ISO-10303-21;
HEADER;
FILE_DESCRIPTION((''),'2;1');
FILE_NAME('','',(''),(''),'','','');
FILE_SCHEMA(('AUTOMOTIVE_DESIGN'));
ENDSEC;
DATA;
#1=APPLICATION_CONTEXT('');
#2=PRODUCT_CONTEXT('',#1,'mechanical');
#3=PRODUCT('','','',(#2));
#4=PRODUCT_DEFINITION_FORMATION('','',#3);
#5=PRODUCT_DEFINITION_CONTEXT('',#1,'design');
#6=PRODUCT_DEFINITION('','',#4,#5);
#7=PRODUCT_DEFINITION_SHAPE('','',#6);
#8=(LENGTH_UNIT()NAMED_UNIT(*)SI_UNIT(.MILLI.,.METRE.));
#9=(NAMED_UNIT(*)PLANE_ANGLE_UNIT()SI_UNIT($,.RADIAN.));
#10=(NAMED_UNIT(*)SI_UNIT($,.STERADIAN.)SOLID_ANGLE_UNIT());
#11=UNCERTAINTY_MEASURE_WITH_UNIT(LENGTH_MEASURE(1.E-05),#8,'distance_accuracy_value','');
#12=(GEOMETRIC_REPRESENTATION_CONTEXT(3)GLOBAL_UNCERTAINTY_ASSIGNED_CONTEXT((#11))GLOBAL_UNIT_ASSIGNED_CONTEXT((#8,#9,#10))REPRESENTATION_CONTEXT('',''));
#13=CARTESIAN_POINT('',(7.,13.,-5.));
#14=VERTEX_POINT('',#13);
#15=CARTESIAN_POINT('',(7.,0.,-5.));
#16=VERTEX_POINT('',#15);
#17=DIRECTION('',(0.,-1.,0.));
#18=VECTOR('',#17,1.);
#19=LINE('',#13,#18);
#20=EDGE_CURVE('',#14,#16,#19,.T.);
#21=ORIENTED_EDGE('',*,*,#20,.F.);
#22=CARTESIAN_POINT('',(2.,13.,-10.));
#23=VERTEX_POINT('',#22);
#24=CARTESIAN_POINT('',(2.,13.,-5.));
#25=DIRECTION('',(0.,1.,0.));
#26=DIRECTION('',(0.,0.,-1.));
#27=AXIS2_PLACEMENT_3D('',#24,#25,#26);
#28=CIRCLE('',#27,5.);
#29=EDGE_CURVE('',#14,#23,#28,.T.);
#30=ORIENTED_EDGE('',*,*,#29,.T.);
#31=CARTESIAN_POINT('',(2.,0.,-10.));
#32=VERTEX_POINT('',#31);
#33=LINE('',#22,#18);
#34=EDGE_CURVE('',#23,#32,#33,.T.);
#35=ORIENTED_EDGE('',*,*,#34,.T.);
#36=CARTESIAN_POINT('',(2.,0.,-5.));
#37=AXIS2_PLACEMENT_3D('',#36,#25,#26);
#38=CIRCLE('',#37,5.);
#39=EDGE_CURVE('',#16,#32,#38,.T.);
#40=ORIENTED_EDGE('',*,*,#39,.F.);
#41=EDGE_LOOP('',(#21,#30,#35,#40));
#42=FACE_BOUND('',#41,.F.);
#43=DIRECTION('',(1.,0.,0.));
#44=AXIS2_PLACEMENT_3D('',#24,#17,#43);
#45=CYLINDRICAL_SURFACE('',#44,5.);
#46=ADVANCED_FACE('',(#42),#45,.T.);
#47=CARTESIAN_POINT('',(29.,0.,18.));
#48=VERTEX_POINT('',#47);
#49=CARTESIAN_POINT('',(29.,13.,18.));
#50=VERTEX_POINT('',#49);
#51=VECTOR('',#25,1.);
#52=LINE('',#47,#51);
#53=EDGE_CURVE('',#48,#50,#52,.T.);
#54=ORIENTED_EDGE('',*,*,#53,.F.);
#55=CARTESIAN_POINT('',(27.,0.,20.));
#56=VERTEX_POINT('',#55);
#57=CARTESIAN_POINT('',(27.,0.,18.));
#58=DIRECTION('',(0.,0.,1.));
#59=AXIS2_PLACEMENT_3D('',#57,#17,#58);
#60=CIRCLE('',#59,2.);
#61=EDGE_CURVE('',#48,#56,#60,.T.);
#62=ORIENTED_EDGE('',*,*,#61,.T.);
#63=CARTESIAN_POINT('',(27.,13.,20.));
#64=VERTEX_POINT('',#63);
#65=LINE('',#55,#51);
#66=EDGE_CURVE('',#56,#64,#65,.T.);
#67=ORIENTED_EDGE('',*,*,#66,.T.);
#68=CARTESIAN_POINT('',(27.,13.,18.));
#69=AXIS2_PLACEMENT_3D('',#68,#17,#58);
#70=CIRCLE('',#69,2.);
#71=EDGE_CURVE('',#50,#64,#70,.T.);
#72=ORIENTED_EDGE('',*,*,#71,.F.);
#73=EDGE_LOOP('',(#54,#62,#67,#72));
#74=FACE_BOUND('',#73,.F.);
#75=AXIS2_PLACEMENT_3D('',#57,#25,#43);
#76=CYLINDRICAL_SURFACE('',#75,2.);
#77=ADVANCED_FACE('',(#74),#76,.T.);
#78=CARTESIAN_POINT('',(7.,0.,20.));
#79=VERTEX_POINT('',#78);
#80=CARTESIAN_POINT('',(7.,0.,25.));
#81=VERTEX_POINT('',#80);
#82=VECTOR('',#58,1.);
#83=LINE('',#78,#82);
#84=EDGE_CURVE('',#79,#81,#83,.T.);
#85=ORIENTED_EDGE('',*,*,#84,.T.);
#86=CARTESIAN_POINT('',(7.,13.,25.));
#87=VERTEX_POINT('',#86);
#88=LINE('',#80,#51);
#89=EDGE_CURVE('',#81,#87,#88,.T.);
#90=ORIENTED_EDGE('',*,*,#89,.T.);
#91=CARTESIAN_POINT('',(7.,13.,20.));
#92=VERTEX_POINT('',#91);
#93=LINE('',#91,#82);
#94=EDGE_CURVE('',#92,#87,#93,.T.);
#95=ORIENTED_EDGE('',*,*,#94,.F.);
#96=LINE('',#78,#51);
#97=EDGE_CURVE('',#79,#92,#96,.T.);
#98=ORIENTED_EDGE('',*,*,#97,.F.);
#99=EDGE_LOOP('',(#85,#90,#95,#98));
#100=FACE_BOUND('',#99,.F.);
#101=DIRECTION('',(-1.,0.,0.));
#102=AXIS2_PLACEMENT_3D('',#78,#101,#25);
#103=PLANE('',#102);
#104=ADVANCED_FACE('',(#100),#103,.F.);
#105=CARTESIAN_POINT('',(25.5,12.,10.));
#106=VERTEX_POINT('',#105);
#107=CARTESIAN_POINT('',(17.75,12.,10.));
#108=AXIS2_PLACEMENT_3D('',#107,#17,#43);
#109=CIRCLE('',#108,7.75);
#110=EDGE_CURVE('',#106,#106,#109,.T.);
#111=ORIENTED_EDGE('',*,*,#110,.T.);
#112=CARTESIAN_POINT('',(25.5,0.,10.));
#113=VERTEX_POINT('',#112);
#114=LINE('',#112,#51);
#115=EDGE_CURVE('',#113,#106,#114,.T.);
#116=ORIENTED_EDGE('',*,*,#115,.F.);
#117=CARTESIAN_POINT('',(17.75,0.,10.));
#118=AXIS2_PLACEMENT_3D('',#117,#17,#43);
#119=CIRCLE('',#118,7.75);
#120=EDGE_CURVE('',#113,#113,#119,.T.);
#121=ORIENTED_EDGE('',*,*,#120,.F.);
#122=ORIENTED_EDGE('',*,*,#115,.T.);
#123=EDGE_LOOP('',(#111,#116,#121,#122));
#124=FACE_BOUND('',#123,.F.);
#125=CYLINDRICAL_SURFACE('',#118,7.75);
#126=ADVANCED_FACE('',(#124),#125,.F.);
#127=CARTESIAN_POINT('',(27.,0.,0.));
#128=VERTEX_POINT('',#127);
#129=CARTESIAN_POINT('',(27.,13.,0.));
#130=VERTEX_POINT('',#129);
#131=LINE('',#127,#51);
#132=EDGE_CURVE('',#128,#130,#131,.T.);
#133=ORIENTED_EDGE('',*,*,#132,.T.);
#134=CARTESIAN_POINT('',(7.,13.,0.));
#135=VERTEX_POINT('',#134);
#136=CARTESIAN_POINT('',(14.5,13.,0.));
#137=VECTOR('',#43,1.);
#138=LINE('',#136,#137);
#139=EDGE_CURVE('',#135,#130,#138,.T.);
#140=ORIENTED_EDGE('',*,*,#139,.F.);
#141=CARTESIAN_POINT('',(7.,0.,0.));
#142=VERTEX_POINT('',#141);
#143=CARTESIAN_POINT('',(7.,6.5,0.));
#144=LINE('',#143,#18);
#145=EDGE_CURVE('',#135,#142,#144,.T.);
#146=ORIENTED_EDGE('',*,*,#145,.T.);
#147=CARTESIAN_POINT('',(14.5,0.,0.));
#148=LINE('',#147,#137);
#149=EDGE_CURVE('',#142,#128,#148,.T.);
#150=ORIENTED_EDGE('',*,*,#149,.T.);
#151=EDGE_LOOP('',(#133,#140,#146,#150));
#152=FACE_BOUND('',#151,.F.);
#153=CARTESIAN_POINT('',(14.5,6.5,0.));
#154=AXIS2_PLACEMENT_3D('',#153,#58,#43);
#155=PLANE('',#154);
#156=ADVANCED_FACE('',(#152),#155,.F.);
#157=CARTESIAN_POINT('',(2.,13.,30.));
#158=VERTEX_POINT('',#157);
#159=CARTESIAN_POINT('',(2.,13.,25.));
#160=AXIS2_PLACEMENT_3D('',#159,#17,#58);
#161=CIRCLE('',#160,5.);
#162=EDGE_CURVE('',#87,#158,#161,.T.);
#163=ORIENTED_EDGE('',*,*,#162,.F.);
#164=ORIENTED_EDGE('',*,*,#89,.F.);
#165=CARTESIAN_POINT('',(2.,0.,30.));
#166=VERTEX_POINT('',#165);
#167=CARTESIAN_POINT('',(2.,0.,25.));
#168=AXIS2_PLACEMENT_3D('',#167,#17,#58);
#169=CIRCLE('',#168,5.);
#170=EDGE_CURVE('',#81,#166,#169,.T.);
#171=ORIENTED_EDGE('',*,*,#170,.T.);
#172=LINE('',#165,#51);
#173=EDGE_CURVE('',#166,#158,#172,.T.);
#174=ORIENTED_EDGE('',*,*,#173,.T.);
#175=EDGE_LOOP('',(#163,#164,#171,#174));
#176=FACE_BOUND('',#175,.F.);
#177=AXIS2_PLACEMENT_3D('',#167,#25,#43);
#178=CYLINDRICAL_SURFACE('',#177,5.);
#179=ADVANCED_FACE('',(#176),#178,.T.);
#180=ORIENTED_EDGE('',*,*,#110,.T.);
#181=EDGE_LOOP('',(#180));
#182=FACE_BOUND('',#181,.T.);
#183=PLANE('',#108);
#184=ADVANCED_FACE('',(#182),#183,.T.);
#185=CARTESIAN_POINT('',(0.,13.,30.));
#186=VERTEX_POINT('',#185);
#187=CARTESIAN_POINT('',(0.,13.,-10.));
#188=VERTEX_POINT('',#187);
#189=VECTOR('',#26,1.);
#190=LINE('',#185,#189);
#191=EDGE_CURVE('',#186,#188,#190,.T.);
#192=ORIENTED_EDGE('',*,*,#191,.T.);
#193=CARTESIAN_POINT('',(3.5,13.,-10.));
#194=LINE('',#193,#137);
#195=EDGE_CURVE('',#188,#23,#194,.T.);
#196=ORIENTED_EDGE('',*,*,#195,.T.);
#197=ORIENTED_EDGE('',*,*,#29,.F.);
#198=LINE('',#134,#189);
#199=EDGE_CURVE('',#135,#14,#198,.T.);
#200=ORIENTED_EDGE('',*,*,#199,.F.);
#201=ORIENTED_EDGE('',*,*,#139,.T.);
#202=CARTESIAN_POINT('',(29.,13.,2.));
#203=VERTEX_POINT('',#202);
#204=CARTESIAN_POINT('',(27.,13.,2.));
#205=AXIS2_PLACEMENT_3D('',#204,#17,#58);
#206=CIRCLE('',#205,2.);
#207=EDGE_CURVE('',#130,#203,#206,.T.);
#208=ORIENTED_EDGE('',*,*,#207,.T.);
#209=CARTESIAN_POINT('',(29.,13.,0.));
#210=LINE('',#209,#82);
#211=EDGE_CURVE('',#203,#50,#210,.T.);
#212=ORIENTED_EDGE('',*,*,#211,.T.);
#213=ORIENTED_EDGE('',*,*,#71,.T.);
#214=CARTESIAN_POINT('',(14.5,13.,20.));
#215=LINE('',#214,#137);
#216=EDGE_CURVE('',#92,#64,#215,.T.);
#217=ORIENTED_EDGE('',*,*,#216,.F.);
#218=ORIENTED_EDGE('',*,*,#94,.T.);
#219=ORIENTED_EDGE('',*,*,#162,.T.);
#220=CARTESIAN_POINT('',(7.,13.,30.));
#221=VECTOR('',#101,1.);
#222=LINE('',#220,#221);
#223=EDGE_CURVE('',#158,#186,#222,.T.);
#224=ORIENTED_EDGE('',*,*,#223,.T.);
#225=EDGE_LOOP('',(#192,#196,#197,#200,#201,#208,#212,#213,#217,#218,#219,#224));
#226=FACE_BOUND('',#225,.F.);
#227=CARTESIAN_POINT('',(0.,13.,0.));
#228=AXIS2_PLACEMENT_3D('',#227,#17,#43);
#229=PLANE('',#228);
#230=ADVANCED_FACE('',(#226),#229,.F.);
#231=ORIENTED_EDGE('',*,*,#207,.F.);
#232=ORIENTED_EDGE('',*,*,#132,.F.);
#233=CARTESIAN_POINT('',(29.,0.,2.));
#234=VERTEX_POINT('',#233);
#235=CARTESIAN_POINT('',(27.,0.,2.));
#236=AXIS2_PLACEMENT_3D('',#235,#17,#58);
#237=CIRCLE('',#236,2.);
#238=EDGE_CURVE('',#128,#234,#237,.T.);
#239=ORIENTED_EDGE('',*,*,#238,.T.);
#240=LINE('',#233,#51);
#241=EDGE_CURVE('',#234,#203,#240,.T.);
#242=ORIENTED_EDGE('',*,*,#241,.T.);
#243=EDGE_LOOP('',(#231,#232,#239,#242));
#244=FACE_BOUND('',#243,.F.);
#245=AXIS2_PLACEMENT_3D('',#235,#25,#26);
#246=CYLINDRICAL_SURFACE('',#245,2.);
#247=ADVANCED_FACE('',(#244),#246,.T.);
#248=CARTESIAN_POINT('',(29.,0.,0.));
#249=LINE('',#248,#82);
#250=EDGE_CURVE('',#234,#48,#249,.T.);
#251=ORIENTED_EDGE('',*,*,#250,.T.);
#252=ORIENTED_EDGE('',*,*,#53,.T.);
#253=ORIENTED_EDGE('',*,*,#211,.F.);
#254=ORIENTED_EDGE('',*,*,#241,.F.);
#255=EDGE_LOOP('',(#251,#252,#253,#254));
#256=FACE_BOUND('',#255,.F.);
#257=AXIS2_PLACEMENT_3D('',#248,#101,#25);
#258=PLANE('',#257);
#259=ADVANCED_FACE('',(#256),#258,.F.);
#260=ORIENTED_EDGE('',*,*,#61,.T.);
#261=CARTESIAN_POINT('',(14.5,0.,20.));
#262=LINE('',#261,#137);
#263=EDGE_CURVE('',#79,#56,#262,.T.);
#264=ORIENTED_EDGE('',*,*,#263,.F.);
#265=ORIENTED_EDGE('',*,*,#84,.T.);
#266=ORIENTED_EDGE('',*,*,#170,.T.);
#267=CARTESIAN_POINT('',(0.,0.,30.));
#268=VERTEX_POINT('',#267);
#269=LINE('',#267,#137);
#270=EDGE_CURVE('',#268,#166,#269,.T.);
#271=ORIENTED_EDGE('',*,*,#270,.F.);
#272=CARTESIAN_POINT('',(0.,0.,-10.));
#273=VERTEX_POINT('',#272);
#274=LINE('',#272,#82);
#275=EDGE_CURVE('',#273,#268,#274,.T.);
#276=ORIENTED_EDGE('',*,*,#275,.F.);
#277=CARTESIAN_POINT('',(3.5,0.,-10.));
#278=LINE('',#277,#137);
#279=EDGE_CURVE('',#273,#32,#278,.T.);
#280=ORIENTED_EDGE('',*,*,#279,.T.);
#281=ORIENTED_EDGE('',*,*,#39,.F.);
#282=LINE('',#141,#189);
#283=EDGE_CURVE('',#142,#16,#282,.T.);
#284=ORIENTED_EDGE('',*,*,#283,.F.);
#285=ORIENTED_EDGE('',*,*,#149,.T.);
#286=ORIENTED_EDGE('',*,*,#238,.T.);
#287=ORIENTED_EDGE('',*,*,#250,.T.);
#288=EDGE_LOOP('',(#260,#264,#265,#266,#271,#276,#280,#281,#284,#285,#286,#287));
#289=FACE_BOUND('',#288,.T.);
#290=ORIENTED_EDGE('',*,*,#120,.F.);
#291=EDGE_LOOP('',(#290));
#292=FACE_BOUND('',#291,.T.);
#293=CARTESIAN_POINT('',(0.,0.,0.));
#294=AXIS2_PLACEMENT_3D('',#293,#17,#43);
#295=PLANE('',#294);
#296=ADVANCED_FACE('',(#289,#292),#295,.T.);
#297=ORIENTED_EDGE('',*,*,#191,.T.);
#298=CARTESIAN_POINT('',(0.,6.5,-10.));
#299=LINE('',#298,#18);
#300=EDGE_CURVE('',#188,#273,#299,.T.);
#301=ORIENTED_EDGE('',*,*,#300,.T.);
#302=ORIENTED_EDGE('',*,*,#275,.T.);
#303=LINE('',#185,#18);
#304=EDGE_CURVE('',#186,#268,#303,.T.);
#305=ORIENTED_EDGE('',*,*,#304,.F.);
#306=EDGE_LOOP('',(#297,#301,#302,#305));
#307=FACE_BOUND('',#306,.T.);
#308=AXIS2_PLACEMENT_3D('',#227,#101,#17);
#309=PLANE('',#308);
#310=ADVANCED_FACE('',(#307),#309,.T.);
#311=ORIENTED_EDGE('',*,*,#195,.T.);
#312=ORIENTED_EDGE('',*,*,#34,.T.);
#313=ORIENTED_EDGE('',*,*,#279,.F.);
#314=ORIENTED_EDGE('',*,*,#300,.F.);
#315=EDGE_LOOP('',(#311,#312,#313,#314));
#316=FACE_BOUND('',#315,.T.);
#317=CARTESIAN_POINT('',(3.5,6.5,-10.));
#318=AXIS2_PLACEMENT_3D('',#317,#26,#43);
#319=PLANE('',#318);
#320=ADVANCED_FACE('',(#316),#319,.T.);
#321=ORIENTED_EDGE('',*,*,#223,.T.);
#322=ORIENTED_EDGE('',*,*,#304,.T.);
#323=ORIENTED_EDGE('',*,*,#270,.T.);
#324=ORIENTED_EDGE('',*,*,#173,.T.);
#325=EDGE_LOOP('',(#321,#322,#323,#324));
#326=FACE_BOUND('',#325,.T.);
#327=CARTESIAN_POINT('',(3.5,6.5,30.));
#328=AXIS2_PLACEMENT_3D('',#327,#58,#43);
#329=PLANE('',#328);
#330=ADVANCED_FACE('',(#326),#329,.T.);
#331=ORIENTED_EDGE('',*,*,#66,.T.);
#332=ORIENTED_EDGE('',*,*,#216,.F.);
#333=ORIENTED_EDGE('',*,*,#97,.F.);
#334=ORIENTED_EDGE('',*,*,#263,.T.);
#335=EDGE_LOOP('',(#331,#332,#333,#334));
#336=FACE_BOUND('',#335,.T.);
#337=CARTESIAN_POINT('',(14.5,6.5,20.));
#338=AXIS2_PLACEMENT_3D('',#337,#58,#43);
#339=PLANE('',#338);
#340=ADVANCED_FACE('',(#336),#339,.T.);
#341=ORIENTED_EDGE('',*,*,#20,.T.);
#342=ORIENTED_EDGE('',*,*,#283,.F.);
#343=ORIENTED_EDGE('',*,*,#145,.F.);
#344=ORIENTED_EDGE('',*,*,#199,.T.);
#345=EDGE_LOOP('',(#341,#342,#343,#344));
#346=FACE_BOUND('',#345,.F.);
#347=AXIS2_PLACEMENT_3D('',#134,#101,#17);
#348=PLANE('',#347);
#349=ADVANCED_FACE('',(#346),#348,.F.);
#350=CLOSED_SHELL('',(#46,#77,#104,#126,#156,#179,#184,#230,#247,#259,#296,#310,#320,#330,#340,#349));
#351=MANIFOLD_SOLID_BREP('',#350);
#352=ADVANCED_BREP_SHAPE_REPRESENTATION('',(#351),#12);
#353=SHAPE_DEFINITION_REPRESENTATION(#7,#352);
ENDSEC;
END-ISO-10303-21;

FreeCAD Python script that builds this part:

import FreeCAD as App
import Part
import Sketcher

V = App.Vector


def edges_at(feature, points):
    """Names of the edges that pass closest to the given points."""
    edges = feature.Shape.Edges
    near = lambda p: min(range(len(edges)), key=lambda i: edges[i].distToShape(Part.Vertex(*p))[0])
    return sorted({f"Edge{near(p) + 1}" for p in points})

doc = App.newDocument("Part")
body = doc.addObject("PartDesign::Body", "Body")

sketch1 = body.newObject("Sketcher::SketchObject", "Sketch")
sketch1.AttachmentSupport = (doc.getObject("XY_Plane"), [""])
sketch1.MapMode = "FlatFace"
sketch1.addGeometry([
    Part.LineSegment(V(0, 13, 0), V(0, 0, 0)),
    Part.LineSegment(V(0, 0, 0), V(29, 0, 0)),
    Part.LineSegment(V(29, 0, 0), V(29, 13, 0)),
    Part.LineSegment(V(29, 13, 0), V(0, 13, 0)),
], False)
sketch1.addConstraint([
    Sketcher.Constraint("Coincident", 0, 2, 1, 1),
    Sketcher.Constraint("Coincident", 1, 2, 2, 1),
    Sketcher.Constraint("Coincident", 2, 2, 3, 1),
    Sketcher.Constraint("Coincident", 3, 2, 0, 1),
    Sketcher.Constraint("Vertical", 0),
    Sketcher.Constraint("Horizontal", 1),
    Sketcher.Constraint("Vertical", 2),
    Sketcher.Constraint("Horizontal", 3),
    Sketcher.Constraint("Coincident", 0, 2, -1, 1),
    Sketcher.Constraint("DistanceX", 1, 1, 1, 2, 29.0),
    Sketcher.Constraint("DistanceY", 0, 2, 0, 1, 13.0),
])
pad1 = body.newObject("PartDesign::Pad", "Pad")
pad1.Profile = sketch1
pad1.Length = 20

sketch2 = body.newObject("Sketcher::SketchObject", "Sketch001")
sketch2.AttachmentSupport = (doc.getObject("XZ_Plane"), [""])
sketch2.MapMode = "FlatFace"
sketch2.addGeometry(Part.Circle(V(17.75, 10, 0), V(0, 0, 1), 7.75), False)
sketch2.addConstraint([
    Sketcher.Constraint("Diameter", 0, 15.5),
    Sketcher.Constraint("DistanceY", -1, 1, 0, 3, 10.0),
    Sketcher.Constraint("DistanceX", -1, 1, 0, 3, 17.75),
])
pocket1 = body.newObject("PartDesign::Pocket", "Pocket")
pocket1.Profile = sketch2
pocket1.Length = 12

sketch3 = body.newObject("Sketcher::SketchObject", "Sketch002")
sketch3.AttachmentSupport = (doc.getObject("XY_Plane"), [""])
sketch3.MapMode = "FlatFace"
sketch3.AttachmentOffset = App.Placement(V(0, 0, 20), App.Rotation())
sketch3.addGeometry([
    Part.LineSegment(V(7, 0, 0), V(7, 13, 0)),
    Part.LineSegment(V(7, 13, 0), V(0, 13, 0)),
    Part.LineSegment(V(0, 13, 0), V(0, 0, 0)),
    Part.LineSegment(V(0, 0, 0), V(7, 0, 0)),
], False)
sketch3.addConstraint([
    Sketcher.Constraint("Coincident", 0, 2, 1, 1),
    Sketcher.Constraint("Coincident", 1, 2, 2, 1),
    Sketcher.Constraint("Coincident", 2, 2, 3, 1),
    Sketcher.Constraint("Coincident", 3, 2, 0, 1),
    Sketcher.Constraint("Vertical", 0),
    Sketcher.Constraint("Horizontal", 1),
    Sketcher.Constraint("Vertical", 2),
    Sketcher.Constraint("Horizontal", 3),
    Sketcher.Constraint("Coincident", 2, 2, -1, 1),
    Sketcher.Constraint("DistanceX", 1, 2, 1, 1, 7.0),
    Sketcher.Constraint("DistanceY", 0, 1, 0, 2, 13.0),
])
pad2 = body.newObject("PartDesign::Pad", "Pad001")
pad2.Profile = sketch3
pad2.Length = 10

sketch4 = body.newObject("Sketcher::SketchObject", "Sketch003")
sketch4.AttachmentSupport = (doc.getObject("XY_Plane"), [""])
sketch4.MapMode = "FlatFace"
sketch4.addGeometry([
    Part.LineSegment(V(0, 0, 0), V(0, 13, 0)),
    Part.LineSegment(V(0, 13, 0), V(7, 13, 0)),
    Part.LineSegment(V(7, 13, 0), V(7, 0, 0)),
    Part.LineSegment(V(7, 0, 0), V(0, 0, 0)),
], False)
sketch4.addConstraint([
    Sketcher.Constraint("Coincident", 0, 2, 1, 1),
    Sketcher.Constraint("Coincident", 1, 2, 2, 1),
    Sketcher.Constraint("Coincident", 2, 2, 3, 1),
    Sketcher.Constraint("Coincident", 3, 2, 0, 1),
    Sketcher.Constraint("Vertical", 0),
    Sketcher.Constraint("Horizontal", 1),
    Sketcher.Constraint("Vertical", 2),
    Sketcher.Constraint("Horizontal", 3),
    Sketcher.Constraint("Coincident", 3, 2, -1, 1),
    Sketcher.Constraint("DistanceX", 1, 1, 1, 2, 7.0),
    Sketcher.Constraint("DistanceY", 0, 1, 0, 2, 13.0),
])
pad3 = body.newObject("PartDesign::Pad", "Pad002")
pad3.Profile = sketch4
pad3.Length = 10
pad3.Reversed = True
doc.recompute()

fillet = body.newObject("PartDesign::Fillet", "Fillet")
fillet.Base = (pad3, edges_at(pad3, [(7, 6.5, 30), (7, 6.5, -10)]))
fillet.Radius = 5
doc.recompute()

fillet2 = body.newObject("PartDesign::Fillet", "Fillet001")
fillet2.Base = (fillet, edges_at(fillet, [(29, 6.5, 20), (29, 6.5, 0)]))
fillet2.Radius = 2

doc.recompute()
